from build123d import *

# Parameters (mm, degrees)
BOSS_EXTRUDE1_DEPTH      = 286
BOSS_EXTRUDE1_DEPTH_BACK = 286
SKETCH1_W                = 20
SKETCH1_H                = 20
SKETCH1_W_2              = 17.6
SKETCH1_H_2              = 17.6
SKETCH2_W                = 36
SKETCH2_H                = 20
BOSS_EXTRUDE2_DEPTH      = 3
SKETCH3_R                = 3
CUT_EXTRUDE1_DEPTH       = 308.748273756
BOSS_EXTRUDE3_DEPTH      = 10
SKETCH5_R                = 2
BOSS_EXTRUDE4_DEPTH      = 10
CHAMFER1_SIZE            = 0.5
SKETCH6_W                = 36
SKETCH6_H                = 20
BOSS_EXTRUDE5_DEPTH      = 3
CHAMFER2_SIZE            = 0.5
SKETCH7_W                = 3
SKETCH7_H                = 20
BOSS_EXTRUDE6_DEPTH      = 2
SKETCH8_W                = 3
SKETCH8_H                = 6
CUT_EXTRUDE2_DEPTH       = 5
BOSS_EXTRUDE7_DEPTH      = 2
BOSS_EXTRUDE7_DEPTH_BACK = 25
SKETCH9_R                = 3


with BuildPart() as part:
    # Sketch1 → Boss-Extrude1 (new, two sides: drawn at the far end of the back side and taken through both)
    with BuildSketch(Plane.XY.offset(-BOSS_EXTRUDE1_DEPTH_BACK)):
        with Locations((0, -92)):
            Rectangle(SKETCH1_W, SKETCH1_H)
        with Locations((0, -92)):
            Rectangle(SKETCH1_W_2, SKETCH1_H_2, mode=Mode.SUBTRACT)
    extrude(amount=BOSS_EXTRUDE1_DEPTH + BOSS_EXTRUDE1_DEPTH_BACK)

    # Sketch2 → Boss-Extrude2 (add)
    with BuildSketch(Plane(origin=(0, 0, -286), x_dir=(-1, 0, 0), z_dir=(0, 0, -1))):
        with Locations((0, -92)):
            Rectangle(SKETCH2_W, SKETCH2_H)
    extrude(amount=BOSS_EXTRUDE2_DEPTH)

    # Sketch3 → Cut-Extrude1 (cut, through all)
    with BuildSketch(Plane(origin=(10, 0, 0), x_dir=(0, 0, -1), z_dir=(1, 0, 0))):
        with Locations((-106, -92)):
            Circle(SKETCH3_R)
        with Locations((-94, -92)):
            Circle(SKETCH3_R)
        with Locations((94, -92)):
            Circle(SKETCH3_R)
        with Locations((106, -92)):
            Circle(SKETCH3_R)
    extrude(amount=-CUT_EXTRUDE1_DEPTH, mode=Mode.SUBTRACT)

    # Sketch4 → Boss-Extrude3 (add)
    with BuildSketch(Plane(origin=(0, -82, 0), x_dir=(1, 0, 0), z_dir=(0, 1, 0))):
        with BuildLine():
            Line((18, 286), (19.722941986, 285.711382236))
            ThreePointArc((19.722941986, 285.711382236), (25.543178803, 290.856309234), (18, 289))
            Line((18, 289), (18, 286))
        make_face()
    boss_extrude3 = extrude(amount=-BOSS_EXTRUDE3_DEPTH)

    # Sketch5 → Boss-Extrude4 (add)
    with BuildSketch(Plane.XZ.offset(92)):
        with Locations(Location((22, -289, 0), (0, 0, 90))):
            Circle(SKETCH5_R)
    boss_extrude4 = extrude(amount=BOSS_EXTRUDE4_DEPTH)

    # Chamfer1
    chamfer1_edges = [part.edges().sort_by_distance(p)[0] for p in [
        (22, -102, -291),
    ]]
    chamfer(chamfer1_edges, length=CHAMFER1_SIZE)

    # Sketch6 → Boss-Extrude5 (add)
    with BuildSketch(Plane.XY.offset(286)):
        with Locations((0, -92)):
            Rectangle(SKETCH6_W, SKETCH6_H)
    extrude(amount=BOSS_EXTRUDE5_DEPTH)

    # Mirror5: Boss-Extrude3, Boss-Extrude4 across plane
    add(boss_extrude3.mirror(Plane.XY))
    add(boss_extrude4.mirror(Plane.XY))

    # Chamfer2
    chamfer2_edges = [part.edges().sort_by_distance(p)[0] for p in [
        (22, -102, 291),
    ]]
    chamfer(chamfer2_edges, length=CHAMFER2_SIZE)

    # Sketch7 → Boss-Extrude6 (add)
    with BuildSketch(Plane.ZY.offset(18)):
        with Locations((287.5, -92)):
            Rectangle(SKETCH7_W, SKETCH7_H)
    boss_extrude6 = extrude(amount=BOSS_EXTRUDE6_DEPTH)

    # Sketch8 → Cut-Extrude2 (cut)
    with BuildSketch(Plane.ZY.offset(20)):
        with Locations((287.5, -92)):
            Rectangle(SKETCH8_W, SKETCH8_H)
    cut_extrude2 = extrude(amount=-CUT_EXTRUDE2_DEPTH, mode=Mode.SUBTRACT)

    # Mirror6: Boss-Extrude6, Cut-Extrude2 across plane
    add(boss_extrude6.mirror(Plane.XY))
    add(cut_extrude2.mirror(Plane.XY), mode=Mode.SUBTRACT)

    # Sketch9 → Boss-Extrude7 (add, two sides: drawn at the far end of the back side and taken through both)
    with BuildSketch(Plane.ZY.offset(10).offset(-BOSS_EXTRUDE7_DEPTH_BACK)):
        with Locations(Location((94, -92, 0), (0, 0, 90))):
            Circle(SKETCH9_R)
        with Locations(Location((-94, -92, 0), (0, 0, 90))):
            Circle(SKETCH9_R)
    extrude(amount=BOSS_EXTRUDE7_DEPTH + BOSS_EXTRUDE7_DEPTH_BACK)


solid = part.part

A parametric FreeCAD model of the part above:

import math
import FreeCAD as App
import Part
import Sketcher
from FreeCAD import Vector


def edges_at(feature, points):
    """Names of the edges that pass closest to the given points."""
    edges = feature.Shape.Edges
    near = lambda p: min(range(len(edges)), key=lambda i: edges[i].distToShape(Part.Vertex(*p))[0])
    return sorted({f"Edge{near(p) + 1}" for p in points})


def add_polygon(sketch, points):
    """Adds a closed chain of lines whose ends are joined by coincident constraints."""
    first, n = sketch.GeometryCount, len(points)
    for a, b in zip(points, points[1:] + points[:1]):
        sketch.addGeometry(Part.LineSegment(App.Vector(*a, 0), App.Vector(*b, 0)), False)
    for i in range(n):
        sketch.addConstraint(Sketcher.Constraint("Coincident", first + i, 2, first + (i + 1) % n, 1))

doc = App.newDocument("Part")
body = doc.addObject("PartDesign::Body", "Body")

# Sketch on XY plane
sketch1 = doc.addObject("Sketcher::SketchObject", "Sketch")
body.addObject(sketch1)
sketch1.AttachmentSupport = (doc.XY_Plane, [""])
sketch1.MapMode = "FlatFace"
add_polygon(sketch1, [(-10, -82), (-10, -102), (10, -102), (10, -82)])  # lines 0-3
add_polygon(sketch1, [(8.8, -100.8), (-8.8, -100.8), (-8.8, -83.2), (8.8, -83.2)])  # lines 4-7
sketch1.addConstraint(Sketcher.Constraint("Vertical", 0))
sketch1.addConstraint(Sketcher.Constraint("Horizontal", 1))
sketch1.addConstraint(Sketcher.Constraint("Vertical", 2))
sketch1.addConstraint(Sketcher.Constraint("Horizontal", 3))
sketch1.addConstraint(Sketcher.Constraint("Horizontal", 4))
sketch1.addConstraint(Sketcher.Constraint("Vertical", 5))
sketch1.addConstraint(Sketcher.Constraint("Horizontal", 6))
sketch1.addConstraint(Sketcher.Constraint("Vertical", 7))
sketch1.addConstraint(Sketcher.Constraint("Equal", 3, 0))
sketch1.addConstraint(Sketcher.Constraint("Equal", 6, 5))
sketch1.addConstraint(Sketcher.Constraint("DistanceX", 1, 1, 1, 2, 20.0))
sketch1.addConstraint(Sketcher.Constraint("DistanceX", 4, 2, 4, 1, 17.6))
sketch1.addConstraint(Sketcher.Constraint("DistanceX", 0, 2, -1, 1, 10.0))
sketch1.addConstraint(Sketcher.Constraint("DistanceY", 0, 2, -1, 1, 102.0))
sketch1.addConstraint(Sketcher.Constraint("DistanceX", 4, 2, -1, 1, 8.8))
sketch1.addConstraint(Sketcher.Constraint("DistanceY", 4, 2, -1, 1, 100.8))
pad1 = doc.addObject("PartDesign::Pad", "Pad")
body.addObject(pad1)
pad1.Profile = sketch1
pad1.Type = "TwoLengths"
pad1.Length = 286
pad1.Length2 = 286

# Sketch on XY plane
sketch2 = doc.addObject("Sketcher::SketchObject", "Sketch001")
body.addObject(sketch2)
sketch2.AttachmentSupport = (doc.XY_Plane, [""])
sketch2.MapMode = "FlatFace"
sketch2.AttachmentOffset = App.Placement(Vector(0, 0, -286), App.Rotation())
add_polygon(sketch2, [(18, -82), (18, -102), (-18, -102), (-18, -82)])  # lines 0-3
sketch2.addConstraint(Sketcher.Constraint("Vertical", 0))
sketch2.addConstraint(Sketcher.Constraint("Horizontal", 1))
sketch2.addConstraint(Sketcher.Constraint("Vertical", 2))
sketch2.addConstraint(Sketcher.Constraint("Horizontal", 3))
sketch2.addConstraint(Sketcher.Constraint("DistanceX", 1, 2, 1, 1, 36.0))
sketch2.addConstraint(Sketcher.Constraint("DistanceY", 0, 2, 0, 1, 20.0))
sketch2.addConstraint(Sketcher.Constraint("DistanceX", -1, 1, 0, 2, 18.0))
sketch2.addConstraint(Sketcher.Constraint("DistanceY", 0, 2, -1, 1, 102.0))
pad2 = doc.addObject("PartDesign::Pad", "Pad001")
body.addObject(pad2)
pad2.Profile = sketch2
pad2.Length = 3
pad2.Reversed = True

# Sketch on YZ plane
sketch3 = doc.addObject("Sketcher::SketchObject", "Sketch002")
body.addObject(sketch3)
sketch3.AttachmentSupport = (doc.YZ_Plane, [""])
sketch3.MapMode = "FlatFace"
sketch3.AttachmentOffset = App.Placement(Vector(0, 0, 10), App.Rotation())
sketch3.addGeometry(Part.Circle(Vector(-92, 106, 0), Vector(0, 0, 1), 3), False)
sketch3.addGeometry(Part.Circle(Vector(-92, 94, 0), Vector(0, 0, 1), 3), False)
sketch3.addGeometry(Part.Circle(Vector(-92, -94, 0), Vector(0, 0, 1), 3), False)
sketch3.addGeometry(Part.Circle(Vector(-92, -106, 0), Vector(0, 0, 1), 3), False)
sketch3.addConstraint(Sketcher.Constraint("Equal", 0, 1))
sketch3.addConstraint(Sketcher.Constraint("Equal", 1, 2))
sketch3.addConstraint(Sketcher.Constraint("Equal", 2, 3))
sketch3.addConstraint(Sketcher.Constraint("Symmetric", 1, 3, 2, 3, -1))
sketch3.addConstraint(Sketcher.Constraint("Symmetric", 0, 3, 3, 3, -1))
sketch3.addConstraint(Sketcher.Constraint("Vertical", 0, 3, 1, 3))
sketch3.addConstraint(Sketcher.Constraint("Diameter", 0, 6.0))
sketch3.addConstraint(Sketcher.Constraint("DistanceX", 0, 3, -1, 1, 92.0))
sketch3.addConstraint(Sketcher.Constraint("DistanceY", -1, 1, 0, 3, 106.0))
sketch3.addConstraint(Sketcher.Constraint("DistanceY", -1, 1, 1, 3, 94.0))
pocket1 = doc.addObject("PartDesign::Pocket", "Pocket")
body.addObject(pocket1)
pocket1.Profile = sketch3
pocket1.Type = "ThroughAll"

# Sketch on XZ plane
sketch4 = doc.addObject("Sketcher::SketchObject", "Sketch003")
body.addObject(sketch4)
sketch4.AttachmentSupport = (doc.XZ_Plane, [""])
sketch4.MapMode = "FlatFace"
sketch4.AttachmentOffset = App.Placement(Vector(0, 0, 82), App.Rotation())
sketch4.addGeometry(Part.LineSegment(Vector(18, -286, 0), Vector(19.722942, -285.711382, 0)), False)
sketch4.addGeometry(Part.ArcOfCircle(Part.Circle(Vector(22, -289, 0), Vector(0, 0, 1), 4), math.radians(180), math.radians(484.698953)), False)
sketch4.addGeometry(Part.LineSegment(Vector(18, -289, 0), Vector(18, -286, 0)), False)
sketch4.addConstraint(Sketcher.Constraint("Coincident", 0, 2, 1, 2))
sketch4.addConstraint(Sketcher.Constraint("Tangent", 1, 1, 2, 1))
sketch4.addConstraint(Sketcher.Constraint("Coincident", 2, 2, 0, 1))
sketch4.addConstraint(Sketcher.Constraint("Vertical", 2))
sketch4.addConstraint(Sketcher.Constraint("Radius", 1, 4.0))
sketch4.addConstraint(Sketcher.Constraint("DistanceY", 2, 1, 2, 2, 3.0))
sketch4.addConstraint(Sketcher.Constraint("DistanceX", -1, 1, 1, 3, 22.0))
sketch4.addConstraint(Sketcher.Constraint("DistanceY", 1, 3, -1, 1, 289.0))
sketch4.addConstraint(Sketcher.Constraint("Distance", 0, 1.746949))
pad3 = doc.addObject("PartDesign::Pad", "Pad002")
body.addObject(pad3)
pad3.Profile = sketch4
pad3.Length = 10

# Sketch on XZ plane
sketch5 = doc.addObject("Sketcher::SketchObject", "Sketch004")
body.addObject(sketch5)
sketch5.AttachmentSupport = (doc.XZ_Plane, [""])
sketch5.MapMode = "FlatFace"
sketch5.AttachmentOffset = App.Placement(Vector(0, 0, 92), App.Rotation())
sketch5.addGeometry(Part.Circle(Vector(22, -289, 0), Vector(0, 0, 1), 2), False)
sketch5.addConstraint(Sketcher.Constraint("Diameter", 0, 4.0))
sketch5.addConstraint(Sketcher.Constraint("DistanceX", -1, 1, 0, 3, 22.0))
sketch5.addConstraint(Sketcher.Constraint("DistanceY", 0, 3, -1, 1, 289.0))
pad4 = doc.addObject("PartDesign::Pad", "Pad003")
body.addObject(pad4)
pad4.Profile = sketch5
pad4.Length = 10
doc.recompute()

chamfer = doc.addObject("PartDesign::Chamfer", "Chamfer")
body.addObject(chamfer)
chamfer.Base = (pad4, edges_at(pad4, [(22, -102, -291)]))
chamfer.Size = 0.5

# Sketch on XY plane
sketch6 = doc.addObject("Sketcher::SketchObject", "Sketch005")
body.addObject(sketch6)
sketch6.AttachmentSupport = (doc.XY_Plane, [""])
sketch6.MapMode = "FlatFace"
sketch6.AttachmentOffset = App.Placement(Vector(0, 0, 286), App.Rotation())
add_polygon(sketch6, [(-18, -82), (-18, -102), (18, -102), (18, -82)])  # lines 0-3
sketch6.addConstraint(Sketcher.Constraint("Vertical", 0))
sketch6.addConstraint(Sketcher.Constraint("Horizontal", 1))
sketch6.addConstraint(Sketcher.Constraint("Vertical", 2))
sketch6.addConstraint(Sketcher.Constraint("Horizontal", 3))
sketch6.addConstraint(Sketcher.Constraint("DistanceX", 1, 1, 1, 2, 36.0))
sketch6.addConstraint(Sketcher.Constraint("DistanceY", 0, 2, 0, 1, 20.0))
sketch6.addConstraint(Sketcher.Constraint("DistanceX", 0, 2, -1, 1, 18.0))
sketch6.addConstraint(Sketcher.Constraint("DistanceY", 0, 2, -1, 1, 102.0))
pad5 = doc.addObject("PartDesign::Pad", "Pad004")
body.addObject(pad5)
pad5.Profile = sketch6
pad5.Length = 3
doc.recompute()

mirrored = doc.addObject("PartDesign::Mirrored", "Mirrored")
body.addObject(mirrored)
mirrored.Originals = [pad3, pad4]
mirrored.MirrorPlane = (doc.XY_Plane, [""])
body.Tip = mirrored
doc.recompute()

chamfer2 = doc.addObject("PartDesign::Chamfer", "Chamfer001")
body.addObject(chamfer2)
chamfer2.Base = (mirrored, edges_at(mirrored, [(22, -102, 291)]))
chamfer2.Size = 0.5

# Sketch on YZ plane
sketch7 = doc.addObject("Sketcher::SketchObject", "Sketch006")
body.addObject(sketch7)
sketch7.AttachmentSupport = (doc.YZ_Plane, [""])
sketch7.MapMode = "FlatFace"
sketch7.AttachmentOffset = App.Placement(Vector(0, 0, -18), App.Rotation())
add_polygon(sketch7, [(-82, 286), (-102, 286), (-102, 289), (-82, 289)])  # lines 0-3
sketch7.addConstraint(Sketcher.Constraint("Horizontal", 0))
sketch7.addConstraint(Sketcher.Constraint("Vertical", 1))
sketch7.addConstraint(Sketcher.Constraint("Horizontal", 2))
sketch7.addConstraint(Sketcher.Constraint("Vertical", 3))
sketch7.addConstraint(Sketcher.Constraint("DistanceX", 0, 2, 0, 1, 20.0))
sketch7.addConstraint(Sketcher.Constraint("DistanceY", 1, 1, 1, 2, 3.0))
sketch7.addConstraint(Sketcher.Constraint("DistanceX", 0, 2, -1, 1, 102.0))
sketch7.addConstraint(Sketcher.Constraint("DistanceY", -1, 1, 0, 2, 286.0))
pad6 = doc.addObject("PartDesign::Pad", "Pad005")
body.addObject(pad6)
pad6.Profile = sketch7
pad6.Length = 2
pad6.Reversed = True

# Sketch on YZ plane
sketch8 = doc.addObject("Sketcher::SketchObject", "Sketch007")
body.addObject(sketch8)
sketch8.AttachmentSupport = (doc.YZ_Plane, [""])
sketch8.MapMode = "FlatFace"
sketch8.AttachmentOffset = App.Placement(Vector(0, 0, -20), App.Rotation())
add_polygon(sketch8, [(-89, 286), (-95, 286), (-95, 289), (-89, 289)])  # lines 0-3
sketch8.addConstraint(Sketcher.Constraint("Horizontal", 0))
sketch8.addConstraint(Sketcher.Constraint("Vertical", 1))
sketch8.addConstraint(Sketcher.Constraint("Horizontal", 2))
sketch8.addConstraint(Sketcher.Constraint("Vertical", 3))
sketch8.addConstraint(Sketcher.Constraint("DistanceX", 0, 2, 0, 1, 6.0))
sketch8.addConstraint(Sketcher.Constraint("DistanceY", 1, 1, 1, 2, 3.0))
sketch8.addConstraint(Sketcher.Constraint("DistanceX", 0, 2, -1, 1, 95.0))
sketch8.addConstraint(Sketcher.Constraint("DistanceY", -1, 1, 0, 2, 286.0))
pocket2 = doc.addObject("PartDesign::Pocket", "Pocket001")
body.addObject(pocket2)
pocket2.Profile = sketch8
pocket2.Length = 5
pocket2.Reversed = True
doc.recompute()

mirrored2 = doc.addObject("PartDesign::Mirrored", "Mirrored001")
body.addObject(mirrored2)
mirrored2.Originals = [pad6, pocket2]
mirrored2.MirrorPlane = (doc.XY_Plane, [""])
body.Tip = mirrored2

# Sketch on YZ plane
sketch9 = doc.addObject("Sketcher::SketchObject", "Sketch008")
body.addObject(sketch9)
sketch9.AttachmentSupport = (doc.YZ_Plane, [""])
sketch9.MapMode = "FlatFace"
sketch9.AttachmentOffset = App.Placement(Vector(0, 0, -10), App.Rotation())
sketch9.addGeometry(Part.Circle(Vector(-92, 94, 0), Vector(0, 0, 1), 3), False)
sketch9.addGeometry(Part.Circle(Vector(-92, -94, 0), Vector(0, 0, 1), 3), False)
sketch9.addConstraint(Sketcher.Constraint("Equal", 0, 1))
sketch9.addConstraint(Sketcher.Constraint("Symmetric", 0, 3, 1, 3, -1))
sketch9.addConstraint(Sketcher.Constraint("Diameter", 0, 6.0))
sketch9.addConstraint(Sketcher.Constraint("DistanceX", 0, 3, -1, 1, 92.0))
sketch9.addConstraint(Sketcher.Constraint("DistanceY", -1, 1, 0, 3, 94.0))
pad7 = doc.addObject("PartDesign::Pad", "Pad006")
body.addObject(pad7)
pad7.Profile = sketch9
pad7.Type = "TwoLengths"
pad7.Length = 2
pad7.Length2 = 25
pad7.Reversed = True

doc.recompute()
